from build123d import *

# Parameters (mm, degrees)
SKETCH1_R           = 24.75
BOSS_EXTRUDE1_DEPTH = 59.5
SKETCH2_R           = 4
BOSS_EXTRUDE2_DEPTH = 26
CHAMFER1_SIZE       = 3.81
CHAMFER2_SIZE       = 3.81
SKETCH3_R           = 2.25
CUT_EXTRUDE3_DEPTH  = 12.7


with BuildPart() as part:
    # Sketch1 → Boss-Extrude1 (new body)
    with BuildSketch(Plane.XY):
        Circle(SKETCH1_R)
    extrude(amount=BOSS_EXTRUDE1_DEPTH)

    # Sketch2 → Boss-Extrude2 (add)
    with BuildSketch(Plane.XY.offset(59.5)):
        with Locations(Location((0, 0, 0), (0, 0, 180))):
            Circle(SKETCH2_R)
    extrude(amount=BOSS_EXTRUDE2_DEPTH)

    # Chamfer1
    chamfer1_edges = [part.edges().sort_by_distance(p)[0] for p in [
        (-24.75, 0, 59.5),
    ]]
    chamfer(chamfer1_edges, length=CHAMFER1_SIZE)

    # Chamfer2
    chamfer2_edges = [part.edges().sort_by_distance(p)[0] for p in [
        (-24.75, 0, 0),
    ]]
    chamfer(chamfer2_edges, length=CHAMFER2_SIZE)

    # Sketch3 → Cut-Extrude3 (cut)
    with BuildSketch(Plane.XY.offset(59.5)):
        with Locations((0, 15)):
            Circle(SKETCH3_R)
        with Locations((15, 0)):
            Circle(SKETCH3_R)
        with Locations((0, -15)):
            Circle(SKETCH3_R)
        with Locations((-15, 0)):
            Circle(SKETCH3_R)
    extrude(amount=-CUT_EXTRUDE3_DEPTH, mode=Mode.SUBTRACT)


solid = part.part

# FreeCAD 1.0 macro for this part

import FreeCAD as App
import Part
import Sketcher

V = App.Vector
Q = App.Units.Quantity


def edges_at(feature, points):
    """Names of the edges that pass closest to the given points."""
    edges = feature.Shape.Edges
    near = lambda p: min(range(len(edges)), key=lambda i: edges[i].distToShape(Part.Vertex(*p))[0])
    return sorted({f"Edge{near(p) + 1}" for p in points})

doc = App.newDocument("Part")
body = doc.addObject("PartDesign::Body", "Body")

# Sketch on XY plane
sketch1 = doc.addObject("Sketcher::SketchObject", "Sketch")
body.addObject(sketch1)
sketch1.AttachmentSupport = (doc.XY_Plane, [""])
sketch1.MapMode = "FlatFace"
sketch1.addGeometry(Part.Circle(V(0, 0, 0), V(0, 0, 1), 24.75), False)
sketch1.addConstraint(Sketcher.Constraint("Coincident", 0, 3, -1, 1))
sketch1.addConstraint(Sketcher.Constraint("Diameter", 0, Q("49.5 mm")))
pad1 = doc.addObject("PartDesign::Pad", "Pad")
body.addObject(pad1)
pad1.Profile = sketch1
pad1.Length = 59.5

# Sketch on XY plane
sketch2 = doc.addObject("Sketcher::SketchObject", "Sketch001")
body.addObject(sketch2)
sketch2.AttachmentSupport = (doc.XY_Plane, [""])
sketch2.MapMode = "FlatFace"
sketch2.AttachmentOffset = App.Placement(V(0, 0, 59.5), App.Rotation())
sketch2.addGeometry(Part.Circle(V(0, 0, 0), V(0, 0, 1), 4), False)
sketch2.addConstraint(Sketcher.Constraint("Coincident", 0, 3, -1, 1))
sketch2.addConstraint(Sketcher.Constraint("Diameter", 0, Q("8 mm")))
pad2 = doc.addObject("PartDesign::Pad", "Pad001")
body.addObject(pad2)
pad2.Profile = sketch2
pad2.Length = 26
doc.recompute()

chamfer = doc.addObject("PartDesign::Chamfer", "Chamfer")
body.addObject(chamfer)
chamfer.Base = (pad2, edges_at(pad2, [(-24.75, 0, 59.5)]))
chamfer.Size = 3.81
doc.recompute()

chamfer2 = doc.addObject("PartDesign::Chamfer", "Chamfer001")
body.addObject(chamfer2)
chamfer2.Base = (chamfer, edges_at(chamfer, [(-24.75, 0, 0)]))
chamfer2.Size = 3.81

# Sketch on XY plane
sketch3 = doc.addObject("Sketcher::SketchObject", "Sketch002")
body.addObject(sketch3)
sketch3.AttachmentSupport = (doc.XY_Plane, [""])
sketch3.MapMode = "FlatFace"
sketch3.AttachmentOffset = App.Placement(V(0, 0, 59.5), App.Rotation())
sketch3.addGeometry(Part.Circle(V(0, 15, 0), V(0, 0, 1), 2.25), False)
sketch3.addGeometry(Part.Circle(V(15, 0, 0), V(0, 0, 1), 2.25), False)
sketch3.addGeometry(Part.Circle(V(0, -15, 0), V(0, 0, 1), 2.25), False)
sketch3.addGeometry(Part.Circle(V(-15, 0, 0), V(0, 0, 1), 2.25), False)
sketch3.addConstraint(Sketcher.Constraint("Equal", 0, 1))
sketch3.addConstraint(Sketcher.Constraint("Equal", 1, 2))
sketch3.addConstraint(Sketcher.Constraint("Equal", 2, 3))
sketch3.addConstraint(Sketcher.Constraint("Symmetric", 0, 3, 2, 3, -1, 1))
sketch3.addConstraint(Sketcher.Constraint("Symmetric", 1, 3, 3, 3, -1, 1))
sketch3.addConstraint(Sketcher.Constraint("PointOnObject", 0, 3, -2))
sketch3.addConstraint(Sketcher.Constraint("PointOnObject", 1, 3, -1))
sketch3.addConstraint(Sketcher.Constraint("Diameter", 0, Q("4.5 mm")))
sketch3.addConstraint(Sketcher.Constraint("DistanceY", -1, 1, 0, 3, Q("15 mm")))
sketch3.addConstraint(Sketcher.Constraint("DistanceX", -1, 1, 1, 3, Q("15 mm")))
pocket1 = doc.addObject("PartDesign::Pocket", "Pocket")
body.addObject(pocket1)
pocket1.Profile = sketch3
pocket1.Length = 12.7

doc.recompute()
